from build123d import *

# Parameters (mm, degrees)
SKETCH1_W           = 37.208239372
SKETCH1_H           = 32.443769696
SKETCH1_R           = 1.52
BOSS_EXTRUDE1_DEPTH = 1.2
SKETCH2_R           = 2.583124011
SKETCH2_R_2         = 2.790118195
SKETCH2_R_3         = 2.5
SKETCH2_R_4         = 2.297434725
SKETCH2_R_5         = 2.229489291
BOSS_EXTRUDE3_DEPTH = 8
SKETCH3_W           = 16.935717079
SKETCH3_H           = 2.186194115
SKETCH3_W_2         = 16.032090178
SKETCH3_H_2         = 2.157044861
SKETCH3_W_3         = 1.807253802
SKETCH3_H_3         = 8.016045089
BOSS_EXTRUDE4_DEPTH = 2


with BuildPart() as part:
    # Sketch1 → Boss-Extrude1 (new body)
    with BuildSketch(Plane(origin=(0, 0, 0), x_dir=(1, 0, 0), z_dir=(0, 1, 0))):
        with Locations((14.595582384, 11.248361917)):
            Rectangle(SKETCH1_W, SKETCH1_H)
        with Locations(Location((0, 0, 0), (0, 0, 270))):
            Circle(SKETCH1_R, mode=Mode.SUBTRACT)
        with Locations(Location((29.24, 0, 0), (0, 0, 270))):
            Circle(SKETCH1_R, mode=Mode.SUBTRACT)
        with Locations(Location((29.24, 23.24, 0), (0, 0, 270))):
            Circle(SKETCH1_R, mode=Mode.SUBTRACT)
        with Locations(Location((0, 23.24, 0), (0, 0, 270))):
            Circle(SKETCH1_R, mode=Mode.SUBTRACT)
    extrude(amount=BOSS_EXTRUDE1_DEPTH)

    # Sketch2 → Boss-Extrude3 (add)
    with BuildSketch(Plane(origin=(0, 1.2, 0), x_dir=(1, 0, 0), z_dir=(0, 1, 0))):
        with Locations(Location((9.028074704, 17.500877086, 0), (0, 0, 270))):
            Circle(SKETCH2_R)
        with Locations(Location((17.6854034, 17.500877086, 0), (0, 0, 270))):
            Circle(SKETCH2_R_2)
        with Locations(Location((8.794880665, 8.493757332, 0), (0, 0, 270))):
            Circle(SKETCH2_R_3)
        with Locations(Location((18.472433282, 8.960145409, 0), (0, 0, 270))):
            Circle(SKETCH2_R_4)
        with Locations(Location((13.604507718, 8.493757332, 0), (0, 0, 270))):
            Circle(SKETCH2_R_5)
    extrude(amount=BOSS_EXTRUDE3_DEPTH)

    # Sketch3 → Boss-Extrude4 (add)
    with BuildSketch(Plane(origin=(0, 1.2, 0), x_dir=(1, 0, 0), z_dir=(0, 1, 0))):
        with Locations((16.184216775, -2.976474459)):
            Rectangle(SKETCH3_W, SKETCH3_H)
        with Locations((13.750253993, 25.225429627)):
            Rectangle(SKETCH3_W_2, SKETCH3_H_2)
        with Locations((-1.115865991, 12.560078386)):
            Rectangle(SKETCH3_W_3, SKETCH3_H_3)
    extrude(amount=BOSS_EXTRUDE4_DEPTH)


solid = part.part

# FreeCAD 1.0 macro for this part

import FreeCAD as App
import Part
import Sketcher
from FreeCAD import Vector

doc = App.newDocument("Part")
body = doc.addObject("PartDesign::Body", "Body")

sketch1 = body.newObject("Sketcher::SketchObject", "Sketch")
sketch1.AttachmentSupport = (doc.getObject("XZ_Plane"), [""])
sketch1.MapMode = "FlatFace"
sketch1.addGeometry([
    Part.LineSegment(Vector(-4, -27.5, 0), Vector(-4, 5, 0)),
    Part.LineSegment(Vector(-4, 5, 0), Vector(33.2, 5, 0)),
    Part.LineSegment(Vector(33.2, 5, 0), Vector(33.2, -27.5, 0)),
    Part.LineSegment(Vector(33.2, -27.5, 0), Vector(-4, -27.5, 0)),
    Part.Circle(Vector(0, 0, 0), Vector(0, 0, 1), 1.5),
    Part.Circle(Vector(29.2, 0, 0), Vector(0, 0, 1), 1.5),
    Part.Circle(Vector(0, -23.2, 0), Vector(0, 0, 1), 1.5),
    Part.Circle(Vector(29.2, -23.2, 0), Vector(0, 0, 1), 1.5),
], False)
sketch1.addConstraint([
    Sketcher.Constraint("Coincident", 0, 2, 1, 1),
    Sketcher.Constraint("Coincident", 1, 2, 2, 1),
    Sketcher.Constraint("Coincident", 2, 2, 3, 1),
    Sketcher.Constraint("Coincident", 3, 2, 0, 1),
    Sketcher.Constraint("Vertical", 0),
    Sketcher.Constraint("Horizontal", 1),
    Sketcher.Constraint("Vertical", 2),
    Sketcher.Constraint("Horizontal", 3),
    Sketcher.Constraint("Coincident", 4, 3, -1, 1),
    Sketcher.Constraint("Equal", 4, 5),
    Sketcher.Constraint("Equal", 5, 6),
    Sketcher.Constraint("Equal", 6, 7),
    Sketcher.Constraint("PointOnObject", 5, 3, -1),
    Sketcher.Constraint("PointOnObject", 6, 3, -2),
    Sketcher.Constraint("Horizontal", 6, 3, 7, 3),
    Sketcher.Constraint("Vertical", 5, 3, 7, 3),
    Sketcher.Constraint("Diameter", 4, 3.04),
    Sketcher.Constraint("DistanceX", -1, 1, 5, 3, 29.24),
    Sketcher.Constraint("DistanceY", 6, 3, -1, 1, 23.24),
    Sketcher.Constraint("DistanceX", 1, 1, 1, 2, 37.208239),
    Sketcher.Constraint("DistanceY", 0, 1, 0, 2, 32.44377),
    Sketcher.Constraint("DistanceX", 0, 2, -1, 1, 4.008537),
    Sketcher.Constraint("DistanceY", -1, 1, 0, 2, 4.973523),
])
pad1 = body.newObject("PartDesign::Pad", "Pad")
pad1.Profile = sketch1
pad1.Length = 1.2
pad1.Reversed = True

sketch2 = body.newObject("Sketcher::SketchObject", "Sketch001")
sketch2.AttachmentSupport = (doc.getObject("XZ_Plane"), [""])
sketch2.MapMode = "FlatFace"
sketch2.AttachmentOffset = App.Placement(Vector(0, 0, -1.2), App.Rotation())
sketch2.addGeometry([
    Part.Circle(Vector(9, -17.5, 0), Vector(0, 0, 1), 2.6),
    Part.Circle(Vector(17.7, -17.5, 0), Vector(0, 0, 1), 2.8),
    Part.Circle(Vector(8.8, -8.5, 0), Vector(0, 0, 1), 2.5),
    Part.Circle(Vector(18.5, -9, 0), Vector(0, 0, 1), 2.3),
    Part.Circle(Vector(13.6, -8.5, 0), Vector(0, 0, 1), 2.2),
], False)
sketch2.addConstraint([
    Sketcher.Constraint("Horizontal", 0, 3, 1, 3),
    Sketcher.Constraint("Horizontal", 2, 3, 4, 3),
    Sketcher.Constraint("Diameter", 2, 5.0),
    Sketcher.Constraint("Diameter", 0, 5.166248),
    Sketcher.Constraint("Diameter", 3, 4.594869),
    Sketcher.Constraint("Diameter", 4, 4.458979),
    Sketcher.Constraint("Diameter", 1, 5.580236),
    Sketcher.Constraint("DistanceX", -1, 1, 2, 3, 8.794881),
    Sketcher.Constraint("DistanceX", 0, 3, 1, 3, 8.657329),
    Sketcher.Constraint("DistanceY", 0, 3, 2, 3, 9.00712),
    Sketcher.Constraint("DistanceX", 1, 3, 3, 3, 0.78703),
    Sketcher.Constraint("DistanceY", 1, 3, 3, 3, 8.540732),
    Sketcher.Constraint("DistanceX", -1, 1, 0, 3, 9.028075),
    Sketcher.Constraint("DistanceY", 0, 3, -1, 1, 17.500877),
    Sketcher.Constraint("DistanceX", -1, 1, 4, 3, 13.604508),
])
pad2 = body.newObject("PartDesign::Pad", "Pad001")
pad2.Profile = sketch2
pad2.Length = 8
pad2.Reversed = True

sketch3 = body.newObject("Sketcher::SketchObject", "Sketch002")
sketch3.AttachmentSupport = (doc.getObject("XZ_Plane"), [""])
sketch3.MapMode = "FlatFace"
sketch3.AttachmentOffset = App.Placement(Vector(0, 0, -1.2), App.Rotation())
sketch3.addGeometry([
    Part.LineSegment(Vector(7.7, 1.9, 0), Vector(7.7, 4.1, 0)),
    Part.LineSegment(Vector(7.7, 4.1, 0), Vector(24.7, 4.1, 0)),
    Part.LineSegment(Vector(24.7, 4.1, 0), Vector(24.7, 1.9, 0)),
    Part.LineSegment(Vector(24.7, 1.9, 0), Vector(7.7, 1.9, 0)),
    Part.LineSegment(Vector(5.7, -26.3, 0), Vector(5.7, -24.1, 0)),
    Part.LineSegment(Vector(5.7, -24.1, 0), Vector(21.8, -24.1, 0)),
    Part.LineSegment(Vector(21.8, -24.1, 0), Vector(21.8, -26.3, 0)),
    Part.LineSegment(Vector(21.8, -26.3, 0), Vector(5.7, -26.3, 0)),
    Part.LineSegment(Vector(-2, -16.6, 0), Vector(-2, -8.6, 0)),
    Part.LineSegment(Vector(-2, -8.6, 0), Vector(-0.2, -8.6, 0)),
    Part.LineSegment(Vector(-0.2, -8.6, 0), Vector(-0.2, -16.6, 0)),
    Part.LineSegment(Vector(-0.2, -16.6, 0), Vector(-2, -16.6, 0)),
], False)
sketch3.addConstraint([
    Sketcher.Constraint("Coincident", 0, 2, 1, 1),
    Sketcher.Constraint("Coincident", 1, 2, 2, 1),
    Sketcher.Constraint("Coincident", 2, 2, 3, 1),
    Sketcher.Constraint("Coincident", 3, 2, 0, 1),
    Sketcher.Constraint("Coincident", 4, 2, 5, 1),
    Sketcher.Constraint("Coincident", 5, 2, 6, 1),
    Sketcher.Constraint("Coincident", 6, 2, 7, 1),
    Sketcher.Constraint("Coincident", 7, 2, 4, 1),
    Sketcher.Constraint("Coincident", 8, 2, 9, 1),
    Sketcher.Constraint("Coincident", 9, 2, 10, 1),
    Sketcher.Constraint("Coincident", 10, 2, 11, 1),
    Sketcher.Constraint("Coincident", 11, 2, 8, 1),
    Sketcher.Constraint("Vertical", 0),
    Sketcher.Constraint("Horizontal", 1),
    Sketcher.Constraint("Vertical", 2),
    Sketcher.Constraint("Horizontal", 3),
    Sketcher.Constraint("Vertical", 4),
    Sketcher.Constraint("Horizontal", 5),
    Sketcher.Constraint("Vertical", 6),
    Sketcher.Constraint("Horizontal", 7),
    Sketcher.Constraint("Vertical", 8),
    Sketcher.Constraint("Horizontal", 9),
    Sketcher.Constraint("Vertical", 10),
    Sketcher.Constraint("Horizontal", 11),
    Sketcher.Constraint("DistanceX", 5, 1, 5, 2, 16.03209),
    Sketcher.Constraint("DistanceX", -1, 1, 5, 2, 21.766299),
    Sketcher.Constraint("DistanceY", 10, 2, -1, 1, 16.568101),
    Sketcher.Constraint("DistanceX", 8, 2, 4, 2, 7.753702),
    Sketcher.Constraint("DistanceX", 1, 1, 1, 2, 16.935717),
    Sketcher.Constraint("DistanceX", 9, 1, 9, 2, 1.807254),
    Sketcher.Constraint("DistanceY", 0, 1, 0, 2, 2.186194),
    Sketcher.Constraint("DistanceY", 4, 1, 4, 2, 2.157045),
    Sketcher.Constraint("DistanceY", 8, 1, 8, 2, 8.016045),
    Sketcher.Constraint("DistanceX", -1, 1, 0, 2, 7.716358),
    Sketcher.Constraint("DistanceY", -1, 1, 0, 2, 4.069572),
    Sketcher.Constraint("DistanceY", 4, 2, 0, 2, 28.216479),
])
pad3 = body.newObject("PartDesign::Pad", "Pad002")
pad3.Profile = sketch3
pad3.Length = 2
pad3.Reversed = True

doc.recompute()
